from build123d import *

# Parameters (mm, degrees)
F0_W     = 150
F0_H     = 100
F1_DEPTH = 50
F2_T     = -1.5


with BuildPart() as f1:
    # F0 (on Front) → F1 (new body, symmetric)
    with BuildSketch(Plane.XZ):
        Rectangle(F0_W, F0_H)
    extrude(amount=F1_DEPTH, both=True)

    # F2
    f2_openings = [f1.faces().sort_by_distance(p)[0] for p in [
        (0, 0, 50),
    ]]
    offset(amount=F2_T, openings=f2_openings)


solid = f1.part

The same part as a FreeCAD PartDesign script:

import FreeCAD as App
import Part
import Sketcher
from FreeCAD import Vector
Q = App.Units.Quantity


def faces_at(feature, points):
    """Names of the faces that lie closest to the given points."""
    faces = feature.Shape.Faces
    near = lambda p: min(range(len(faces)), key=lambda i: faces[i].distToShape(Part.Vertex(*p))[0])
    return sorted({f"Face{near(p) + 1}" for p in points})

doc = App.newDocument("Part")
body = doc.addObject("PartDesign::Body", "Body")

# Sketch on XZ plane
sketch1 = body.newObject("Sketcher::SketchObject", "Sketch")
sketch1.AttachmentSupport = (doc.getObject("XZ_Plane"), [""])
sketch1.MapMode = "FlatFace"
sketch1.addGeometry(Part.LineSegment(Vector(-75, 50, 0), Vector(-75, -50, 0)), False)
sketch1.addGeometry(Part.LineSegment(Vector(-75, -50, 0), Vector(75, -50, 0)), False)
sketch1.addGeometry(Part.LineSegment(Vector(75, -50, 0), Vector(75, 50, 0)), False)
sketch1.addGeometry(Part.LineSegment(Vector(75, 50, 0), Vector(-75, 50, 0)), False)
sketch1.addConstraint(Sketcher.Constraint("Coincident", 0, 2, 1, 1))
sketch1.addConstraint(Sketcher.Constraint("Coincident", 1, 2, 2, 1))
sketch1.addConstraint(Sketcher.Constraint("Coincident", 2, 2, 3, 1))
sketch1.addConstraint(Sketcher.Constraint("Coincident", 3, 2, 0, 1))
sketch1.addConstraint(Sketcher.Constraint("Vertical", 0))
sketch1.addConstraint(Sketcher.Constraint("Horizontal", 1))
sketch1.addConstraint(Sketcher.Constraint("Vertical", 2))
sketch1.addConstraint(Sketcher.Constraint("Horizontal", 3))
sketch1.addConstraint(Sketcher.Constraint("Symmetric", 0, 2, 2, 2, -1, 1))
sketch1.addConstraint(Sketcher.Constraint("DistanceX", 1, 1, 1, 2, Q("150 mm")))
sketch1.addConstraint(Sketcher.Constraint("DistanceY", 0, 2, 0, 1, Q("100 mm")))
pad1 = body.newObject("PartDesign::Pad", "Pad")
pad1.Profile = sketch1
pad1.Length = 100
pad1.Midplane = True
doc.recompute()

thickness = body.newObject("PartDesign::Thickness", "Thickness")
thickness.Base = (pad1, faces_at(pad1, [(0, 0, 50)]))
thickness.Value = 1.5
thickness.Reversed = True
thickness.Join = "Arc"

doc.recompute()
